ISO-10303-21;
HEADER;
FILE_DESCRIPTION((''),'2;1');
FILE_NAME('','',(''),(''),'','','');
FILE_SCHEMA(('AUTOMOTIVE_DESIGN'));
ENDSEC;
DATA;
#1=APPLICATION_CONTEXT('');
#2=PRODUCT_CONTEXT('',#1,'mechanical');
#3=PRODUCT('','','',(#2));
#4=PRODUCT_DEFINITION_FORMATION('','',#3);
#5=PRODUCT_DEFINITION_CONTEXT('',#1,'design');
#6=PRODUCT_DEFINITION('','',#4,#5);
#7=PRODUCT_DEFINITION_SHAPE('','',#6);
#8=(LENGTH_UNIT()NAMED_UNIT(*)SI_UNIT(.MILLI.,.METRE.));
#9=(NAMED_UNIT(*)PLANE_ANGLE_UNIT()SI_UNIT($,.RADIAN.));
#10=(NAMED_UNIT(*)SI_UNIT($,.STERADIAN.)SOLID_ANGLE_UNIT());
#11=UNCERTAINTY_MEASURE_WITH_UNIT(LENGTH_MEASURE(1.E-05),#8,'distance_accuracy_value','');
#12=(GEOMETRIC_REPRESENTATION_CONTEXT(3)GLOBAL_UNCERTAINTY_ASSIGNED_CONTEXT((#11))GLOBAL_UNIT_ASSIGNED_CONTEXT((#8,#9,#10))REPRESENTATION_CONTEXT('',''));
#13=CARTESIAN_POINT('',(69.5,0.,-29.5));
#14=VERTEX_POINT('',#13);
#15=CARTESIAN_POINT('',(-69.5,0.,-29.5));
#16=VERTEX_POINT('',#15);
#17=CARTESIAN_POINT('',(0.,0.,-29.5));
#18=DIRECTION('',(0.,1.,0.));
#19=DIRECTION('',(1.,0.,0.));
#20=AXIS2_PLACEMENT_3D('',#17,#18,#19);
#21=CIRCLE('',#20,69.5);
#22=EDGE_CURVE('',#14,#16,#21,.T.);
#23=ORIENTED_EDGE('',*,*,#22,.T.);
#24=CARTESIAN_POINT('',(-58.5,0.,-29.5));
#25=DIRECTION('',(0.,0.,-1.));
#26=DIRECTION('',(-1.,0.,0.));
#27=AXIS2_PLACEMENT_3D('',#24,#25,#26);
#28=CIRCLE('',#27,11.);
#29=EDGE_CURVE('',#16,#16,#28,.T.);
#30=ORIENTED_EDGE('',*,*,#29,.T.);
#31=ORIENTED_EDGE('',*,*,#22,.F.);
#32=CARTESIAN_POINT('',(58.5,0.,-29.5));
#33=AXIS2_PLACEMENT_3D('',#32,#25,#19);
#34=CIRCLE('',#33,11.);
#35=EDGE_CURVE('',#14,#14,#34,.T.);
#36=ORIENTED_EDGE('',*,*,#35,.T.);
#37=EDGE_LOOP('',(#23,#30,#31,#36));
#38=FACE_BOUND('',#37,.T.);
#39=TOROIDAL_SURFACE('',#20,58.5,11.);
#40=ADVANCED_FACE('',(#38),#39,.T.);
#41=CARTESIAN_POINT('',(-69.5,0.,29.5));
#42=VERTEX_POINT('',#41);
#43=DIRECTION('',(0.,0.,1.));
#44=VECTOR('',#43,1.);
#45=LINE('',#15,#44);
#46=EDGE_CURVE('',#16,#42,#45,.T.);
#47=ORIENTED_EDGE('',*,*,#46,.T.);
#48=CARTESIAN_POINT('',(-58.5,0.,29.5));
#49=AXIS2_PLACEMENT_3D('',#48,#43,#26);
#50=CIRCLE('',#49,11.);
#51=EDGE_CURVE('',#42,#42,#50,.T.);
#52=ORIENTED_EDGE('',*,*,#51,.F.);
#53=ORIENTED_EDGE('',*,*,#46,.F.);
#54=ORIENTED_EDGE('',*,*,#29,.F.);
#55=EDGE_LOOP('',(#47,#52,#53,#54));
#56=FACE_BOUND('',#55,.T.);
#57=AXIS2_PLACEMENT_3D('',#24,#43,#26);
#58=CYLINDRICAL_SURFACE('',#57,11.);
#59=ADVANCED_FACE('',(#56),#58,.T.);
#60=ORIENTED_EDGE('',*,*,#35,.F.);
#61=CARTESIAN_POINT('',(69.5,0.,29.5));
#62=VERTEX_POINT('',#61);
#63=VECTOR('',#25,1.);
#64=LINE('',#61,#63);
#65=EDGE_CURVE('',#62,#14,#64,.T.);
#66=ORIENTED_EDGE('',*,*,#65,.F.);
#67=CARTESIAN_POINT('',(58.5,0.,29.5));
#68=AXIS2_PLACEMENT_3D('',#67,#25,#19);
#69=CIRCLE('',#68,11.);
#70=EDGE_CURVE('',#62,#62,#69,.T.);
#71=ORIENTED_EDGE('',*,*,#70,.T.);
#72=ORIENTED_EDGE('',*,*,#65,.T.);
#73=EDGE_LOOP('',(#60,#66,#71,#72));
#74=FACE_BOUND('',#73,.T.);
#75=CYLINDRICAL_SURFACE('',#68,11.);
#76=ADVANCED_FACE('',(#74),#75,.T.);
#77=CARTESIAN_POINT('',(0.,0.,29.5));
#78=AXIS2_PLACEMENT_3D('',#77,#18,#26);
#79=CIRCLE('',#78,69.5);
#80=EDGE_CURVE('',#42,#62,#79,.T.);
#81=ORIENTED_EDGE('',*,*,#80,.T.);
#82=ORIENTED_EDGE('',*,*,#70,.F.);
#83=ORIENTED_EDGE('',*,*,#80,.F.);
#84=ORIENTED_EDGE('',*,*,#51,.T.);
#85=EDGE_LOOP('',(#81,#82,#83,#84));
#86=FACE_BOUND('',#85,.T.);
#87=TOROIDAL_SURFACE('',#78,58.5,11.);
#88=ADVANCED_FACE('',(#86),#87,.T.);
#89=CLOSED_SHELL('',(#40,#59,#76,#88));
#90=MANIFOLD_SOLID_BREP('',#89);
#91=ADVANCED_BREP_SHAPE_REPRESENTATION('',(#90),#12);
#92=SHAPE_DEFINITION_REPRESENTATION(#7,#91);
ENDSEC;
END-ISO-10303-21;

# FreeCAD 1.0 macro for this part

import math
import FreeCAD as App
import Part
import Sketcher

V = App.Vector
Q = App.Units.Quantity

doc = App.newDocument("Part")
params = doc.addObject("Spreadsheet::Sheet", "Params")
for row, (alias, value) in enumerate([
    ("sketch1_diameter", "22 mm"),
    ("sketch2_radius", "47.5 mm"),
    ("sketch2_height", "59 mm"),
], start=1):
    params.set(f"A{row}", alias)
    params.set(f"B{row}", "=" + value)
    params.setAlias(f"B{row}", alias)

body = doc.addObject("PartDesign::Body", "Body")

# Sketch on XY plane
sketch1 = body.newObject("Sketcher::SketchObject", "Sketch")
sketch1.AttachmentSupport = (doc.getObject("XY_Plane"), [""])
sketch1.MapMode = "FlatFace"
sketch1.addGeometry(Part.Circle(V(58, 0, 0), V(0, 0, 1), 11), False)
sketch1.addConstraint([
    Sketcher.Constraint("PointOnObject", 0, 3, -1),
    Sketcher.Constraint("Diameter", 0, Q("22 mm")),
    Sketcher.Constraint("DistanceX", -1, 1, 0, 3, Q("58.5 mm")),
])
sketch1.setExpression("Constraints[1]", "Params.sketch1_diameter")

# Sketch on XZ plane
sketch2 = body.newObject("Sketcher::SketchObject", "Sketch001")
sketch2.AttachmentSupport = (doc.getObject("XZ_Plane"), [""])
sketch2.MapMode = "FlatFace"
sketch2.addGeometry([
    Part.LineSegment(V(48, 30, 0), V(48, -30, 0)),
    Part.ArcOfCircle(Part.Circle(V(0, -30, 0), V(0, 0, 1), 48), math.radians(180), math.radians(360)),
    Part.LineSegment(V(-48, -30, 0), V(-48, 30, 0)),
    Part.ArcOfCircle(Part.Circle(V(0, 30, 0), V(0, 0, 1), 48), math.radians(0), math.radians(180)),
], False)
sketch2.addConstraint([
    Sketcher.Constraint("Tangent", 0, 2, 1, 2),
    Sketcher.Constraint("Tangent", 1, 1, 2, 1),
    Sketcher.Constraint("Tangent", 2, 2, 3, 2),
    Sketcher.Constraint("Tangent", 3, 1, 0, 1),
    Sketcher.Constraint("Vertical", 0),
    Sketcher.Constraint("Vertical", 2),
    Sketcher.Constraint("Symmetric", 1, 3, 3, 3, -1, 1),
    Sketcher.Constraint("Radius", 1, Q("47.5 mm")),
    Sketcher.Constraint("DistanceY", 0, 2, 0, 1, Q("59 mm")),
])
sketch2.setExpression("Constraints[7]", "Params.sketch2_radius")
sketch2.setExpression("Constraints[8]", "Params.sketch2_height")
doc.recompute()

additivepipe = body.newObject("PartDesign::AdditivePipe", "AdditivePipe")
additivepipe.Profile = sketch1
additivepipe.Spine = (sketch2, ["Edge1", "Edge2", "Edge3", "Edge4"])

doc.recompute()
